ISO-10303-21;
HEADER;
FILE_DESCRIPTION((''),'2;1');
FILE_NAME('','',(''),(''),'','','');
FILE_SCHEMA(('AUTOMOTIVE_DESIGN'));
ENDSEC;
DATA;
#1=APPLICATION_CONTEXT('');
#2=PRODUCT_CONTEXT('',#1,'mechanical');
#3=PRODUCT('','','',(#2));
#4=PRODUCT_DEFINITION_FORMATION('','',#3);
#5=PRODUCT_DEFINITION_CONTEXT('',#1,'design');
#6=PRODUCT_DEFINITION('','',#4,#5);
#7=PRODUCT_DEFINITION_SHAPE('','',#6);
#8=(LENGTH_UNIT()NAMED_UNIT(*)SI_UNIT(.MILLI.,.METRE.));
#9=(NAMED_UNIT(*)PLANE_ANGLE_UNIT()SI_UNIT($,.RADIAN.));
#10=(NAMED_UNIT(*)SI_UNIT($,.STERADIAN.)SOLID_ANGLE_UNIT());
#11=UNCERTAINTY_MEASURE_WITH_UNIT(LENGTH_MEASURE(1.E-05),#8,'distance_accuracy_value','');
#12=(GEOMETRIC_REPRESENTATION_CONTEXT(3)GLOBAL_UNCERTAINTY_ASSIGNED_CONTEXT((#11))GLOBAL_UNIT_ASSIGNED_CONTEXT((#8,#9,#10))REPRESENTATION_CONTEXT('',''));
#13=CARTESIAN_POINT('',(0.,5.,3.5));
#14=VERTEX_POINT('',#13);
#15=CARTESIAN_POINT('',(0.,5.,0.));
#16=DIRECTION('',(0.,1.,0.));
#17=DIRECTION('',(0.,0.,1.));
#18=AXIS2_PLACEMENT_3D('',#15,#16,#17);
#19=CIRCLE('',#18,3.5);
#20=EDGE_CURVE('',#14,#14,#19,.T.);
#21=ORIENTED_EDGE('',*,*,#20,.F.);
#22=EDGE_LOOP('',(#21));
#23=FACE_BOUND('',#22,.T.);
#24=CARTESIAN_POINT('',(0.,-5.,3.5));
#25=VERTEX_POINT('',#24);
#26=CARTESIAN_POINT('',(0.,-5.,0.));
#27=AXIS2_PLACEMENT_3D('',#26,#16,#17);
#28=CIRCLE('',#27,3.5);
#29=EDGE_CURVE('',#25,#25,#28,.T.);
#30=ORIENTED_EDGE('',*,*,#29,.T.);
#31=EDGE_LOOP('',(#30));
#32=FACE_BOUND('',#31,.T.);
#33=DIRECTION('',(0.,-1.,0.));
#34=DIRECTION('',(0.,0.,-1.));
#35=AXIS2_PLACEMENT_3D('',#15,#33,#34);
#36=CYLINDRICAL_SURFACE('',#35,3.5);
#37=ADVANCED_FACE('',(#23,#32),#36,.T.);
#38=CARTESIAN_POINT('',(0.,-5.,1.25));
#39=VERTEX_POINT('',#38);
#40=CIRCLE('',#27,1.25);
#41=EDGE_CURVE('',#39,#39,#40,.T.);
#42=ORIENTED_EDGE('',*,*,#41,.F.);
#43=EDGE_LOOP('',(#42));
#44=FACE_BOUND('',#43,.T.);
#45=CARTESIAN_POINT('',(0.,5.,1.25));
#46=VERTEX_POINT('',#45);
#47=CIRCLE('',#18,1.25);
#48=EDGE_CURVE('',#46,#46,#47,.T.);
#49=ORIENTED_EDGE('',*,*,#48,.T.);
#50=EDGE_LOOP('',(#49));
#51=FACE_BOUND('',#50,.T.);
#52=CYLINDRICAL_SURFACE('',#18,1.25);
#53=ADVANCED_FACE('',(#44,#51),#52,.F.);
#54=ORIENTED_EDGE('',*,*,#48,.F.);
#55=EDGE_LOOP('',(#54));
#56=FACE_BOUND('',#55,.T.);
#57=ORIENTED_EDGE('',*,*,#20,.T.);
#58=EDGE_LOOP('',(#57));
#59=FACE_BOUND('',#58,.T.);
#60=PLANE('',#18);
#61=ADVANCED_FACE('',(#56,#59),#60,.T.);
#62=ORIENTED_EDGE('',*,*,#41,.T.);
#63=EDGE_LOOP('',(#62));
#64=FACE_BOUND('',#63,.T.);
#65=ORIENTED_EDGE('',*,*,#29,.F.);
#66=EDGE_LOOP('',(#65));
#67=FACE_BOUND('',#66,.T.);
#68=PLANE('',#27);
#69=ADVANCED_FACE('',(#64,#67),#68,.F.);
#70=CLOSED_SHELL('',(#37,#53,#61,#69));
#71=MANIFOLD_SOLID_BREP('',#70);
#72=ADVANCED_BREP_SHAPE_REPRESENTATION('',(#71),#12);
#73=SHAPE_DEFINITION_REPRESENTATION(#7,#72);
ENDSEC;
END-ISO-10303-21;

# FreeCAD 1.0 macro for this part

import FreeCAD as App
import Part
import Sketcher

V = App.Vector
Q = App.Units.Quantity

doc = App.newDocument("Part")
body = doc.addObject("PartDesign::Body", "Body")

# Sketch on XZ plane
sketch1 = body.newObject("Sketcher::SketchObject", "Sketch")
sketch1.AttachmentSupport = (doc.getObject("XZ_Plane"), [""])
sketch1.MapMode = "FlatFace"
sketch1.addGeometry([
    Part.Circle(V(0, 0, 0), V(0, 0, 1), 3.5),
    Part.Circle(V(0, 0, 0), V(0, 0, 1), 1),
], False)
sketch1.addConstraint([
    Sketcher.Constraint("Coincident", 0, 3, -1, 1),
    Sketcher.Constraint("Coincident", 1, 3, -1, 1),
    Sketcher.Constraint("Diameter", 0, Q("7 mm")),
    Sketcher.Constraint("Diameter", 1, Q("2 mm")),
])
pad1 = body.newObject("PartDesign::Pad", "Pad")
pad1.Profile = sketch1
pad1.Length = 10
pad1.Midplane = True

# Sketch on XZ plane
sketch2 = body.newObject("Sketcher::SketchObject", "Sketch001")
sketch2.AttachmentSupport = (doc.getObject("XZ_Plane"), [""])
sketch2.MapMode = "FlatFace"
sketch2.AttachmentOffset = App.Placement(V(0, 0, -5), App.Rotation())
sketch2.addGeometry(Part.Circle(V(0, 0, 0), V(0, 0, 1), 1.2), False)
sketch2.addConstraint([
    Sketcher.Constraint("Coincident", 0, 3, -1, 1),
    Sketcher.Constraint("Diameter", 0, Q("2.5 mm")),
])
doc.recompute()
hole = body.newObject("PartDesign::Hole", "Hole")
hole.Profile = sketch2
hole.ThreadType = "None"
hole.Diameter = 2.5
hole.DepthType = "ThroughAll"
hole.Reversed = True

doc.recompute()
